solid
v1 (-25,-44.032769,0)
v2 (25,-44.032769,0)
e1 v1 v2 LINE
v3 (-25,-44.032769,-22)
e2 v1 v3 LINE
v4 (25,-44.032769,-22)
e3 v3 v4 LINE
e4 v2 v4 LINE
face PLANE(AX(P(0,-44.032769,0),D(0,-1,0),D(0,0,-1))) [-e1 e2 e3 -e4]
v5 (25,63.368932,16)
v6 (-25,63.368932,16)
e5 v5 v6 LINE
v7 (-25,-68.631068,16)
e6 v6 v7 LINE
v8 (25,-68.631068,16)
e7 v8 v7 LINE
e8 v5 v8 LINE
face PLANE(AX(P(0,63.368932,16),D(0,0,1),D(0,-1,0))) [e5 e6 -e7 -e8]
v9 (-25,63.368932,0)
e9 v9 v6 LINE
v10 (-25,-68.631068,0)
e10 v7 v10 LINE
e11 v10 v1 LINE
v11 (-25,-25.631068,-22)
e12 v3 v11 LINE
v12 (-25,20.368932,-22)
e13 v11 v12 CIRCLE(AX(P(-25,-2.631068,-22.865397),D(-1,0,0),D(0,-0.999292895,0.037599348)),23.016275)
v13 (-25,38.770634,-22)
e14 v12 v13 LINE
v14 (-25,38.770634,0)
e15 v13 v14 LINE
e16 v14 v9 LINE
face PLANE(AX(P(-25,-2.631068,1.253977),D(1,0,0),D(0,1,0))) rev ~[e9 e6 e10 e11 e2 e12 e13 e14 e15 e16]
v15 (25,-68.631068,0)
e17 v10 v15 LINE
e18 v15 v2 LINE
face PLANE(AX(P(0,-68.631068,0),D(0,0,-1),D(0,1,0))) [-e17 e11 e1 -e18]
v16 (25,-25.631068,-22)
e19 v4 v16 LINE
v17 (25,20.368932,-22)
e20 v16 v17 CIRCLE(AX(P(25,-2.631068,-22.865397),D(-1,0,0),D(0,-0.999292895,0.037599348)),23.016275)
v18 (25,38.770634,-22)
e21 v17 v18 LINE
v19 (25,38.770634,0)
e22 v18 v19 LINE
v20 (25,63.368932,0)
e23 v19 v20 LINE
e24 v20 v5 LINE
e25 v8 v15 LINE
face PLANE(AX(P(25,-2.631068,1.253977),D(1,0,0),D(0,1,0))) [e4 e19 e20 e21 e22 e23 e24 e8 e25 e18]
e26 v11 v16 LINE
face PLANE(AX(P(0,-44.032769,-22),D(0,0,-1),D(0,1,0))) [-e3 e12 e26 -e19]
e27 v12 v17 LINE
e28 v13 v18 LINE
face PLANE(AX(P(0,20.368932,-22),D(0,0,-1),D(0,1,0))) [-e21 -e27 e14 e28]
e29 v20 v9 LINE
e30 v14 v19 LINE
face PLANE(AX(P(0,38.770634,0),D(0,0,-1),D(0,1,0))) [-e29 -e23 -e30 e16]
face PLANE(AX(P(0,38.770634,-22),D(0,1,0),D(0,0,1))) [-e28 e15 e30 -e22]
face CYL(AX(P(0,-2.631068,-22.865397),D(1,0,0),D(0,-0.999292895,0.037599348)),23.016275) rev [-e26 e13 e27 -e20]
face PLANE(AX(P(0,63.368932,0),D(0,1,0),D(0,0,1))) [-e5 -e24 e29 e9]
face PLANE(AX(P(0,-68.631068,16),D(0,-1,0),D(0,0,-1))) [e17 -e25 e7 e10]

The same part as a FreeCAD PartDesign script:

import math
import FreeCAD as App
import Part
import Sketcher
Q = App.Units.Quantity

doc = App.newDocument("Part")
body = doc.addObject("PartDesign::Body", "Body")

# Sketch on YZ plane
sketch1 = body.newObject("Sketcher::SketchObject", "Sketch")
sketch1.AttachmentSupport = (doc.getObject("YZ_Plane"), [""])
sketch1.MapMode = "FlatFace"
sketch1.addGeometry(Part.LineSegment(App.Vector(-69, 16, 0), App.Vector(-69, 0, 0)), False)
sketch1.addGeometry(Part.LineSegment(App.Vector(-69, 0, 0), App.Vector(-44, 0, 0)), False)
sketch1.addGeometry(Part.LineSegment(App.Vector(-44, 0, 0), App.Vector(-44, -22, 0)), False)
sketch1.addGeometry(Part.LineSegment(App.Vector(-44, -22, 0), App.Vector(-26, -22, 0)), False)
sketch1.addGeometry(Part.ArcOfCircle(Part.Circle(App.Vector(-3, -23, 0), App.Vector(0, 0, 1), 23), math.radians(2), math.radians(178)), False)
sketch1.addGeometry(Part.LineSegment(App.Vector(20, -22, 0), App.Vector(39, -22, 0)), False)
sketch1.addGeometry(Part.LineSegment(App.Vector(39, -22, 0), App.Vector(39, 0, 0)), False)
sketch1.addGeometry(Part.LineSegment(App.Vector(39, 0, 0), App.Vector(63, 0, 0)), False)
sketch1.addGeometry(Part.LineSegment(App.Vector(63, 0, 0), App.Vector(63, 16, 0)), False)
sketch1.addGeometry(Part.LineSegment(App.Vector(63, 16, 0), App.Vector(-69, 16, 0)), False)
sketch1.addConstraint(Sketcher.Constraint("Coincident", 0, 2, 1, 1))
sketch1.addConstraint(Sketcher.Constraint("Coincident", 1, 2, 2, 1))
sketch1.addConstraint(Sketcher.Constraint("Coincident", 2, 2, 3, 1))
sketch1.addConstraint(Sketcher.Constraint("Coincident", 3, 2, 4, 2))
sketch1.addConstraint(Sketcher.Constraint("Coincident", 4, 1, 5, 1))
sketch1.addConstraint(Sketcher.Constraint("Coincident", 5, 2, 6, 1))
sketch1.addConstraint(Sketcher.Constraint("Coincident", 6, 2, 7, 1))
sketch1.addConstraint(Sketcher.Constraint("Coincident", 7, 2, 8, 1))
sketch1.addConstraint(Sketcher.Constraint("Coincident", 8, 2, 9, 1))
sketch1.addConstraint(Sketcher.Constraint("Coincident", 9, 2, 0, 1))
sketch1.addConstraint(Sketcher.Constraint("Vertical", 0))
sketch1.addConstraint(Sketcher.Constraint("Horizontal", 1))
sketch1.addConstraint(Sketcher.Constraint("Vertical", 2))
sketch1.addConstraint(Sketcher.Constraint("Horizontal", 3))
sketch1.addConstraint(Sketcher.Constraint("Horizontal", 5))
sketch1.addConstraint(Sketcher.Constraint("Vertical", 6))
sketch1.addConstraint(Sketcher.Constraint("Horizontal", 7))
sketch1.addConstraint(Sketcher.Constraint("Vertical", 8))
sketch1.addConstraint(Sketcher.Constraint("Horizontal", 9))
sketch1.addConstraint(Sketcher.Constraint("PointOnObject", 0, 2, -1))
sketch1.addConstraint(Sketcher.Constraint("PointOnObject", 6, 2, -1))
sketch1.addConstraint(Sketcher.Constraint("Horizontal", 3, 2, 4, 1))
sketch1.addConstraint(Sketcher.Constraint("Equal", 3, 5))
sketch1.addConstraint(Sketcher.Constraint("Equal", 1, 7))
sketch1.addConstraint(Sketcher.Constraint("DistanceX", 9, 2, 9, 1, Q("132 mm")))
sketch1.addConstraint(Sketcher.Constraint("DistanceY", 0, 2, 0, 1, Q("16 mm")))
sketch1.addConstraint(Sketcher.Constraint("DistanceY", 2, 2, 2, 1, Q("22 mm")))
sketch1.addConstraint(Sketcher.Constraint("DistanceX", 3, 2, 4, 3, Q("23 mm")))
sketch1.addConstraint(Sketcher.Constraint("DistanceX", 1, 1, 1, 2, Q("24.598299 mm")))
sketch1.addConstraint(Sketcher.Constraint("Radius", 4, Q("23.016275 mm")))
sketch1.addConstraint(Sketcher.Constraint("DistanceX", 4, 3, -1, 1, Q("2.631068 mm")))
pad1 = body.newObject("PartDesign::Pad", "Pad")
pad1.Profile = sketch1
pad1.Length = 50
pad1.Midplane = True

doc.recompute()
